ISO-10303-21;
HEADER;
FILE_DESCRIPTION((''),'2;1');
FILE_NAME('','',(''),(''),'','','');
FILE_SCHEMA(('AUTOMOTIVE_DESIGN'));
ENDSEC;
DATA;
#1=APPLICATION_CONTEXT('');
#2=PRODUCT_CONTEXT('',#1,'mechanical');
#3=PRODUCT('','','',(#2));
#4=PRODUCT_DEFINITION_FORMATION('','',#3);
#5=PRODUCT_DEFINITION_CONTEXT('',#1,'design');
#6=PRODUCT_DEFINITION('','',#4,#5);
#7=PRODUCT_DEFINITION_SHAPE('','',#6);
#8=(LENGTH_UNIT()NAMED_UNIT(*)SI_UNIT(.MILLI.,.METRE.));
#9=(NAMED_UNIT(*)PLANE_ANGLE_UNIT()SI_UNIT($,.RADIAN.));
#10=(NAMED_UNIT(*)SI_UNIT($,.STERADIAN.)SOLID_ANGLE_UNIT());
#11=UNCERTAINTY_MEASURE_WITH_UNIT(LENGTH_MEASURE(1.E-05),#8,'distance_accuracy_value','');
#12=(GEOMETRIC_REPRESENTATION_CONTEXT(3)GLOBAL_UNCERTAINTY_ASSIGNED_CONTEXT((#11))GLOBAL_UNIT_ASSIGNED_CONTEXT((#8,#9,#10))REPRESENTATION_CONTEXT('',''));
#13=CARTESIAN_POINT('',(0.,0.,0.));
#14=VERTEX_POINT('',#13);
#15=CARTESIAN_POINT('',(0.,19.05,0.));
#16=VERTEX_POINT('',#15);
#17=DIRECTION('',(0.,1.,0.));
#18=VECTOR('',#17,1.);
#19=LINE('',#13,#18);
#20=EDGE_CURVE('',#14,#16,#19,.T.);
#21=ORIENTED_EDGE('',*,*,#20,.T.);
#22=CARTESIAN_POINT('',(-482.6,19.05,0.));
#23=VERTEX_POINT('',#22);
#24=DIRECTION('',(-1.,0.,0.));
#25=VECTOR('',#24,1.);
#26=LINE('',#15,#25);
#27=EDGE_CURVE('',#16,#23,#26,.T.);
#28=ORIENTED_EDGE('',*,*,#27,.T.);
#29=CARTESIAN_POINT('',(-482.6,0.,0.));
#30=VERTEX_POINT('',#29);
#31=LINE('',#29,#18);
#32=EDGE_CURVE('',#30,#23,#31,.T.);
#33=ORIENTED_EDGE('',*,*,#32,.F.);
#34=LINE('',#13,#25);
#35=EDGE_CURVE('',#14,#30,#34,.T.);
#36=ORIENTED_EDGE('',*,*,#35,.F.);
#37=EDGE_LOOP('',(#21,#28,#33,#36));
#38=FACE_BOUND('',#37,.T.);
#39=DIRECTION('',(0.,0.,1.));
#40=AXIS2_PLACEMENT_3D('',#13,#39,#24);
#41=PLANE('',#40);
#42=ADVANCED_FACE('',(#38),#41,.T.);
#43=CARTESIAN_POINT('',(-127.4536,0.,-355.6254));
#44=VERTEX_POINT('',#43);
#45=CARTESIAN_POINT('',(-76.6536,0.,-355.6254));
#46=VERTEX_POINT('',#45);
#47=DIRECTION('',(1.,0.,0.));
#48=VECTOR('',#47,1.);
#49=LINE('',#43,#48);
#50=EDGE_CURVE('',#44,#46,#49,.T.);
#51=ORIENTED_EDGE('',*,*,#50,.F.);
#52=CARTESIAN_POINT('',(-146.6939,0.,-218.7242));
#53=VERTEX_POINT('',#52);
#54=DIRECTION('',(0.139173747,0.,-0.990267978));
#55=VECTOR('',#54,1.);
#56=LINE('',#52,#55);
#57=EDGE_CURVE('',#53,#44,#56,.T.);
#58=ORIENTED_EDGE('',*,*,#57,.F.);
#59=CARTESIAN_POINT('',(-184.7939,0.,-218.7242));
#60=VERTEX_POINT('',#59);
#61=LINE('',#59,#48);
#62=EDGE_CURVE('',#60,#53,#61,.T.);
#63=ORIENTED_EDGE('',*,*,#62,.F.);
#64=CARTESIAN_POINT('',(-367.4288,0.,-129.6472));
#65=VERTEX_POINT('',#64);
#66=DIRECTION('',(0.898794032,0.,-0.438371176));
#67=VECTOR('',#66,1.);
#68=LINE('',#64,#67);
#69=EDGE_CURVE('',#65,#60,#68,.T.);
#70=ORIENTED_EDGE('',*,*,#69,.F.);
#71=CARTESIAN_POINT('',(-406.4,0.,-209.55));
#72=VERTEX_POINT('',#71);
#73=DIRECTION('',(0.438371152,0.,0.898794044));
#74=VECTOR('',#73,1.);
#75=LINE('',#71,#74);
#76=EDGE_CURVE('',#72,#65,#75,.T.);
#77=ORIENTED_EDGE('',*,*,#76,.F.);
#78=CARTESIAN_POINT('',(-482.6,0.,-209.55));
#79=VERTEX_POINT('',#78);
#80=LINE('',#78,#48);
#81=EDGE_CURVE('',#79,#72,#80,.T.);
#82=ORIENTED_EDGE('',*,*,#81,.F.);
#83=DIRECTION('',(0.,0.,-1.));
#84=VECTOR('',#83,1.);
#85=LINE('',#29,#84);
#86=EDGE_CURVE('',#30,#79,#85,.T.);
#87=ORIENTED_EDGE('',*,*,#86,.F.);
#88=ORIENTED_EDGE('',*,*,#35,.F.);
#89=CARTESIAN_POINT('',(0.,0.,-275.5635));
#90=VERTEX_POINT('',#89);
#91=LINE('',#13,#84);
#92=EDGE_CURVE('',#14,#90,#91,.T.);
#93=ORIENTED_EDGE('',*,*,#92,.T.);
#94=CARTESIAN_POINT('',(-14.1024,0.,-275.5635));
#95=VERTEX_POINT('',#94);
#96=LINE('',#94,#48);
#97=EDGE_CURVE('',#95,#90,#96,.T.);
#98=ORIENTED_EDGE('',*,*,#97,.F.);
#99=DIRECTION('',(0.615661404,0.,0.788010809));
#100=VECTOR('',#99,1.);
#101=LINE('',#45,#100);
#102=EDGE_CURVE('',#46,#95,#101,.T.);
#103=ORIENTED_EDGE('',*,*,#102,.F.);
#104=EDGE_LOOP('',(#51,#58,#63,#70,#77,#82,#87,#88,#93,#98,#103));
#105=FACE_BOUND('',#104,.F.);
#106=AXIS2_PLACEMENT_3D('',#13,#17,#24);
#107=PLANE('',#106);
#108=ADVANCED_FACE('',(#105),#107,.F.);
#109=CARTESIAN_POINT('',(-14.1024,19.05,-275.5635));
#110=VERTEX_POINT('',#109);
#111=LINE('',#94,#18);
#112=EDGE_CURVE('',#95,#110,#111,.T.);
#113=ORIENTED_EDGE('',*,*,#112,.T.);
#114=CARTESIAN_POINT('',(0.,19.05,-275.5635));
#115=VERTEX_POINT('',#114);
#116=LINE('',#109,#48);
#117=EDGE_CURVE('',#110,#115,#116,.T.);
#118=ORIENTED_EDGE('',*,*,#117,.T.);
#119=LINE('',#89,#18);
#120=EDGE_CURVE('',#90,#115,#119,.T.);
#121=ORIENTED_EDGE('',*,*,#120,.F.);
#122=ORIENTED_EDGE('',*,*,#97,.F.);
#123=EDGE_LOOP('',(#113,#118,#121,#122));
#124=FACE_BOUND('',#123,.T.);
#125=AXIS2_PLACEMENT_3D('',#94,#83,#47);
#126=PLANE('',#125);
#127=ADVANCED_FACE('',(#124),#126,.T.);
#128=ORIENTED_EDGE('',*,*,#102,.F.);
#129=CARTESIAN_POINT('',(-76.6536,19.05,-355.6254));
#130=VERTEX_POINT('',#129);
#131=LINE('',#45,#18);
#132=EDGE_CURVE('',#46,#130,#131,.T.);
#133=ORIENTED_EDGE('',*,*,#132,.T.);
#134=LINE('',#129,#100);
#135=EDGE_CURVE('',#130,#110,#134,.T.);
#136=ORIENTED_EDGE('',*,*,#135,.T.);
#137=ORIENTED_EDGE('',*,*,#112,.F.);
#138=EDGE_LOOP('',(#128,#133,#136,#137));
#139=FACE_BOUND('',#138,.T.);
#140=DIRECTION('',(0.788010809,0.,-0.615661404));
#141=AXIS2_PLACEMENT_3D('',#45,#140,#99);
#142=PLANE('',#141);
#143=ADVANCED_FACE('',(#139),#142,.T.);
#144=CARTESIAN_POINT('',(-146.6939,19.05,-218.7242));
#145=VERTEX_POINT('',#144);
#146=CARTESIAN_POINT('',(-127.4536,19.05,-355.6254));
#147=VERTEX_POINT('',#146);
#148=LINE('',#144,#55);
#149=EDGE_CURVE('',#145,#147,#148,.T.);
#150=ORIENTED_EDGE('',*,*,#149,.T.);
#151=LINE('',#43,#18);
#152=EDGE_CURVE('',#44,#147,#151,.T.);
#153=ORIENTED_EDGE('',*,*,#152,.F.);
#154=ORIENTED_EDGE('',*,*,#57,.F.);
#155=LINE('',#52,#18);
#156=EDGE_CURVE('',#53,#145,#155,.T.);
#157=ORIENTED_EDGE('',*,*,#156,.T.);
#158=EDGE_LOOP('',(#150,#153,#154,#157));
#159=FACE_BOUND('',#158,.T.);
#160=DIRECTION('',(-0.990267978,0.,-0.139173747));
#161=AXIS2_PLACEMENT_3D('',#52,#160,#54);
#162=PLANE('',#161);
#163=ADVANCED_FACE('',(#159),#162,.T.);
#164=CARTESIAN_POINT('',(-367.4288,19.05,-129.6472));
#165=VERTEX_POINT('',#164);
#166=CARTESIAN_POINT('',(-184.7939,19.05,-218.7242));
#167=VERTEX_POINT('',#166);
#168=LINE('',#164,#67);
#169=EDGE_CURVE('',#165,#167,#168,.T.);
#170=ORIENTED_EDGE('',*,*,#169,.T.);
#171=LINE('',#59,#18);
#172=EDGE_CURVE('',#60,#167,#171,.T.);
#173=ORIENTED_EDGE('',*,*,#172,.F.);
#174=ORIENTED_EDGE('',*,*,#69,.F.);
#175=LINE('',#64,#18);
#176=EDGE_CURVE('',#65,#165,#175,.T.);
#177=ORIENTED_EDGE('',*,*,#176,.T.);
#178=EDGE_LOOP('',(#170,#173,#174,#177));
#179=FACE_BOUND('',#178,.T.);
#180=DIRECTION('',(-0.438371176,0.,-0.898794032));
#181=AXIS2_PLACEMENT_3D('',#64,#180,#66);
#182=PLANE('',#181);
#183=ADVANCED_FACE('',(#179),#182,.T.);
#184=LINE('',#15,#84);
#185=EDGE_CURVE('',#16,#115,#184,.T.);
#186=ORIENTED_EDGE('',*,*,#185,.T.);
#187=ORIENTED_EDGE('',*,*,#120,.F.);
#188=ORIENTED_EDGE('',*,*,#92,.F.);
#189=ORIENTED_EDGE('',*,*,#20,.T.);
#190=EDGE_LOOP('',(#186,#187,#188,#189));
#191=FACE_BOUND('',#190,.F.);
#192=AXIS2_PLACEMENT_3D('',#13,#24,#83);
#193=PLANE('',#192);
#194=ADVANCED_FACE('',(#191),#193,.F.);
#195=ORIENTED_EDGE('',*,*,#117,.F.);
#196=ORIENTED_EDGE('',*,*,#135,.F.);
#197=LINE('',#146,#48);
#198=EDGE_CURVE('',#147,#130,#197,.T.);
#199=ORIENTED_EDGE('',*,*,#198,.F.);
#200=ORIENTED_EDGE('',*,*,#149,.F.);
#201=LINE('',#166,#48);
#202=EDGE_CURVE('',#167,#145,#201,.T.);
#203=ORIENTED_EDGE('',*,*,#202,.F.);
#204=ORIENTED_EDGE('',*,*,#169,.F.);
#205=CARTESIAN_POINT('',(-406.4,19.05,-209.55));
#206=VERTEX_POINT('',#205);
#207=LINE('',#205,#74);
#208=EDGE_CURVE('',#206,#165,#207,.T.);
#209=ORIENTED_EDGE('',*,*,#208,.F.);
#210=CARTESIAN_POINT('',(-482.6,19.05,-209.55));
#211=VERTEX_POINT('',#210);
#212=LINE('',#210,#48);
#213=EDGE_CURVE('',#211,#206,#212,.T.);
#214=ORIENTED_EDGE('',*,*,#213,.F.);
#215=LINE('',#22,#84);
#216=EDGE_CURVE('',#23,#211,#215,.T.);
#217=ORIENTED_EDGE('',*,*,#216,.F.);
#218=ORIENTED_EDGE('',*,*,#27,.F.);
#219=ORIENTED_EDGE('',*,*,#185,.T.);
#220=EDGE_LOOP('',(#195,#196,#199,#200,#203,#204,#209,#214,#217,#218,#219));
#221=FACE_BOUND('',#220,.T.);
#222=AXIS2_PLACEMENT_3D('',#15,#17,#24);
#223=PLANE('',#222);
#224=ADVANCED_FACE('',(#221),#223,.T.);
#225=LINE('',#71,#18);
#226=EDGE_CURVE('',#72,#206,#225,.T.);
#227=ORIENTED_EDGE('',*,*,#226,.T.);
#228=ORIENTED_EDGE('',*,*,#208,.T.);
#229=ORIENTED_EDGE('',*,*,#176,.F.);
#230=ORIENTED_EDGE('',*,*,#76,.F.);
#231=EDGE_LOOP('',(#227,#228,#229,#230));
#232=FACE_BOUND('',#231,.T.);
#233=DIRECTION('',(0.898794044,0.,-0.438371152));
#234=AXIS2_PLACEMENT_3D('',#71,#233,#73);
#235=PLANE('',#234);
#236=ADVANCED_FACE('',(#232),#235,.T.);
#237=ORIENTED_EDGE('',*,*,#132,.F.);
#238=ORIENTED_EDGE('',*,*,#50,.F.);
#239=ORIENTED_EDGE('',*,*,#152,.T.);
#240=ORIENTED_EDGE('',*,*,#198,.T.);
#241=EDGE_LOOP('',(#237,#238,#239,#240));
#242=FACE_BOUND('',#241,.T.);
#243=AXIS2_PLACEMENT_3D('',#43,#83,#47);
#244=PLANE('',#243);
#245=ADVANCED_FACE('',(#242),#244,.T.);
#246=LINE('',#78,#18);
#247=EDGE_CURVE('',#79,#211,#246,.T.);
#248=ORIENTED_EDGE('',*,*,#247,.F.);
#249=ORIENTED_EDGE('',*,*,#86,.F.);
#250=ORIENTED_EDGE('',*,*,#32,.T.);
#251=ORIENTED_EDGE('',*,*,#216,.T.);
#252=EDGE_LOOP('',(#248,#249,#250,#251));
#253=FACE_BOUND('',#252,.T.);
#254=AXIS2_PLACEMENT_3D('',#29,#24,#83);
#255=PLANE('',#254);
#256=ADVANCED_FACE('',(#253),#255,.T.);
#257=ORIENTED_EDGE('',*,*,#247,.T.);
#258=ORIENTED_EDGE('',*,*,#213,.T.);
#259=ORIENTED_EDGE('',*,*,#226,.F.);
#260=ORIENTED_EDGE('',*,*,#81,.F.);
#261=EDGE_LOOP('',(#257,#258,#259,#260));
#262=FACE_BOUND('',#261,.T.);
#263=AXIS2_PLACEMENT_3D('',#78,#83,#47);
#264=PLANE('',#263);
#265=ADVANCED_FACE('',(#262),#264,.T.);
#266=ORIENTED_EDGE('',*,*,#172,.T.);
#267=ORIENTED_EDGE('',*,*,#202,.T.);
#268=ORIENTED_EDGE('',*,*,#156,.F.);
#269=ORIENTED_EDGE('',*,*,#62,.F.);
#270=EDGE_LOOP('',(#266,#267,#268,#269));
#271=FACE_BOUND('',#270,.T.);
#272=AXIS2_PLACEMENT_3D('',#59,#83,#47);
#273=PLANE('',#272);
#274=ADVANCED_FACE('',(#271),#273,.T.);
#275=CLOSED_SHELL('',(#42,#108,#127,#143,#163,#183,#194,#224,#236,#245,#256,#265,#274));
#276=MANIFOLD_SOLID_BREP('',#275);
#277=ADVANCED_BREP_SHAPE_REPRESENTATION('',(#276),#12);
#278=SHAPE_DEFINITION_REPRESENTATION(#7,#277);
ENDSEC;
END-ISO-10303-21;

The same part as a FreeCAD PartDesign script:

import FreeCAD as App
import Part
import Sketcher
from FreeCAD import Vector
Q = App.Units.Quantity


def add_polygon(sketch, points):
    """Adds a closed chain of lines whose ends are joined by coincident constraints."""
    first, n = sketch.GeometryCount, len(points)
    for a, b in zip(points, points[1:] + points[:1]):
        sketch.addGeometry(Part.LineSegment(App.Vector(*a, 0), App.Vector(*b, 0)), False)
    for i in range(n):
        sketch.addConstraint(Sketcher.Constraint("Coincident", first + i, 2, first + (i + 1) % n, 1))

doc = App.newDocument("Part")
body = doc.addObject("PartDesign::Body", "Body")

# Sketch on XZ plane
sketch1 = body.newObject("Sketcher::SketchObject", "Sketch")
sketch1.AttachmentSupport = (doc.getObject("XZ_Plane"), [""])
sketch1.MapMode = "FlatFace"
add_polygon(sketch1, [(-483, 0), (0, 0), (0, -276), (-14, -276), (-77, -356), (-127, -356), (-147, -219), (-185, -219), (-367, -130), (-406, -210), (-483, -210)])  # lines 0-10
sketch1.addConstraint([
    Sketcher.Constraint("Horizontal", 0),
    Sketcher.Constraint("Vertical", 1),
    Sketcher.Constraint("Horizontal", 2),
    Sketcher.Constraint("Horizontal", 4),
    Sketcher.Constraint("Horizontal", 6),
    Sketcher.Constraint("Horizontal", 9),
    Sketcher.Constraint("Vertical", 10),
    Sketcher.Constraint("Coincident", 0, 2, -1, 1),
    Sketcher.Constraint("Perpendicular", 7, 8),
    Sketcher.Constraint("DistanceX", 0, 1, 0, 2, Q("19 in")),
    Sketcher.Constraint("DistanceX", 4, 2, 4, 1, Q("2 in")),
    Sketcher.Constraint("DistanceX", 9, 2, 9, 1, Q("3 in")),
    Sketcher.Constraint("Distance", 3, Q("4 in")),
    Sketcher.Constraint("Distance", 7, Q("8 in")),
    Sketcher.Constraint("DistanceX", 6, 2, 6, 1, Q("1.5 in")),
    Sketcher.Constraint("Angle", 3, Q("-128 deg")),
    Sketcher.Constraint("Angle", 5, Q("98 deg")),
    Sketcher.Constraint("Angle", 7, Q("154 deg")),
    Sketcher.Constraint("Distance", 8, Q("3.5 in")),
    Sketcher.Constraint("DistanceY", 10, 1, 10, 2, Q("8.25 in")),
    Sketcher.Constraint("DistanceY", 3, 2, -1, 1, Q("14.001 in")),
])
pad1 = body.newObject("PartDesign::Pad", "Pad")
pad1.Profile = sketch1
pad1.Length = Q("0.75 in")
pad1.Reversed = True

doc.recompute()
